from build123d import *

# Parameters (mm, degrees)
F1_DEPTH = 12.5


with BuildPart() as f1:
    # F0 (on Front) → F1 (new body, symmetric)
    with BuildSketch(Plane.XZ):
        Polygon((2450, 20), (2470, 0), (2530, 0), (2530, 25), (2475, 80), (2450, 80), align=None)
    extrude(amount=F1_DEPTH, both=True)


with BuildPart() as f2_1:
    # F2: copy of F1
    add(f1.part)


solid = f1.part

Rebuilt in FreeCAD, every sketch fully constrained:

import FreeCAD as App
import Part
import Sketcher
from FreeCAD import Vector
Q = App.Units.Quantity


def add_polygon(sketch, points):
    """Adds a closed chain of lines whose ends are joined by coincident constraints."""
    first, n = sketch.GeometryCount, len(points)
    for a, b in zip(points, points[1:] + points[:1]):
        sketch.addGeometry(Part.LineSegment(App.Vector(*a, 0), App.Vector(*b, 0)), False)
    for i in range(n):
        sketch.addConstraint(Sketcher.Constraint("Coincident", first + i, 2, first + (i + 1) % n, 1))

doc = App.newDocument("Part")
body = doc.addObject("PartDesign::Body", "Body")

sketch1 = body.newObject("Sketcher::SketchObject", "Sketch")
sketch1.AttachmentSupport = (doc.getObject("XZ_Plane"), [""])
sketch1.MapMode = "FlatFace"
add_polygon(sketch1, [(2450, 20), (2470, 0), (2530, 0), (2530, 25), (2475, 80), (2450, 80)])
sketch1.addConstraint([
    Sketcher.Constraint("Horizontal", 1),
    Sketcher.Constraint("Vertical", 2),
    Sketcher.Constraint("Horizontal", 4),
    Sketcher.Constraint("Vertical", 5),
    Sketcher.Constraint("PointOnObject", 0, 2, -1),
    Sketcher.Constraint("Parallel", 0, 3),
    Sketcher.Constraint("Equal", 4, 2),
    Sketcher.Constraint("Equal", 1, 5),
    Sketcher.Constraint("DistanceX", 1, 1, 1, 2, Q("60 mm")),
    Sketcher.Constraint("DistanceX", 4, 2, 4, 1, Q("25 mm")),
    Sketcher.Constraint("DistanceX", -1, 1, 0, 2, Q("2470 mm")),
    Sketcher.Constraint("DistanceX", -1, 1, 3, 2, Q("2475 mm")),
])
pad1 = body.newObject("PartDesign::Pad", "Pad")
pad1.Profile = sketch1
pad1.Length = 25
pad1.Midplane = True
body2 = doc.addObject("PartDesign::Body", "Body001")
doc.recompute()

body2.BaseFeature = body
doc.recompute()
body.Visibility = False

doc.recompute()
